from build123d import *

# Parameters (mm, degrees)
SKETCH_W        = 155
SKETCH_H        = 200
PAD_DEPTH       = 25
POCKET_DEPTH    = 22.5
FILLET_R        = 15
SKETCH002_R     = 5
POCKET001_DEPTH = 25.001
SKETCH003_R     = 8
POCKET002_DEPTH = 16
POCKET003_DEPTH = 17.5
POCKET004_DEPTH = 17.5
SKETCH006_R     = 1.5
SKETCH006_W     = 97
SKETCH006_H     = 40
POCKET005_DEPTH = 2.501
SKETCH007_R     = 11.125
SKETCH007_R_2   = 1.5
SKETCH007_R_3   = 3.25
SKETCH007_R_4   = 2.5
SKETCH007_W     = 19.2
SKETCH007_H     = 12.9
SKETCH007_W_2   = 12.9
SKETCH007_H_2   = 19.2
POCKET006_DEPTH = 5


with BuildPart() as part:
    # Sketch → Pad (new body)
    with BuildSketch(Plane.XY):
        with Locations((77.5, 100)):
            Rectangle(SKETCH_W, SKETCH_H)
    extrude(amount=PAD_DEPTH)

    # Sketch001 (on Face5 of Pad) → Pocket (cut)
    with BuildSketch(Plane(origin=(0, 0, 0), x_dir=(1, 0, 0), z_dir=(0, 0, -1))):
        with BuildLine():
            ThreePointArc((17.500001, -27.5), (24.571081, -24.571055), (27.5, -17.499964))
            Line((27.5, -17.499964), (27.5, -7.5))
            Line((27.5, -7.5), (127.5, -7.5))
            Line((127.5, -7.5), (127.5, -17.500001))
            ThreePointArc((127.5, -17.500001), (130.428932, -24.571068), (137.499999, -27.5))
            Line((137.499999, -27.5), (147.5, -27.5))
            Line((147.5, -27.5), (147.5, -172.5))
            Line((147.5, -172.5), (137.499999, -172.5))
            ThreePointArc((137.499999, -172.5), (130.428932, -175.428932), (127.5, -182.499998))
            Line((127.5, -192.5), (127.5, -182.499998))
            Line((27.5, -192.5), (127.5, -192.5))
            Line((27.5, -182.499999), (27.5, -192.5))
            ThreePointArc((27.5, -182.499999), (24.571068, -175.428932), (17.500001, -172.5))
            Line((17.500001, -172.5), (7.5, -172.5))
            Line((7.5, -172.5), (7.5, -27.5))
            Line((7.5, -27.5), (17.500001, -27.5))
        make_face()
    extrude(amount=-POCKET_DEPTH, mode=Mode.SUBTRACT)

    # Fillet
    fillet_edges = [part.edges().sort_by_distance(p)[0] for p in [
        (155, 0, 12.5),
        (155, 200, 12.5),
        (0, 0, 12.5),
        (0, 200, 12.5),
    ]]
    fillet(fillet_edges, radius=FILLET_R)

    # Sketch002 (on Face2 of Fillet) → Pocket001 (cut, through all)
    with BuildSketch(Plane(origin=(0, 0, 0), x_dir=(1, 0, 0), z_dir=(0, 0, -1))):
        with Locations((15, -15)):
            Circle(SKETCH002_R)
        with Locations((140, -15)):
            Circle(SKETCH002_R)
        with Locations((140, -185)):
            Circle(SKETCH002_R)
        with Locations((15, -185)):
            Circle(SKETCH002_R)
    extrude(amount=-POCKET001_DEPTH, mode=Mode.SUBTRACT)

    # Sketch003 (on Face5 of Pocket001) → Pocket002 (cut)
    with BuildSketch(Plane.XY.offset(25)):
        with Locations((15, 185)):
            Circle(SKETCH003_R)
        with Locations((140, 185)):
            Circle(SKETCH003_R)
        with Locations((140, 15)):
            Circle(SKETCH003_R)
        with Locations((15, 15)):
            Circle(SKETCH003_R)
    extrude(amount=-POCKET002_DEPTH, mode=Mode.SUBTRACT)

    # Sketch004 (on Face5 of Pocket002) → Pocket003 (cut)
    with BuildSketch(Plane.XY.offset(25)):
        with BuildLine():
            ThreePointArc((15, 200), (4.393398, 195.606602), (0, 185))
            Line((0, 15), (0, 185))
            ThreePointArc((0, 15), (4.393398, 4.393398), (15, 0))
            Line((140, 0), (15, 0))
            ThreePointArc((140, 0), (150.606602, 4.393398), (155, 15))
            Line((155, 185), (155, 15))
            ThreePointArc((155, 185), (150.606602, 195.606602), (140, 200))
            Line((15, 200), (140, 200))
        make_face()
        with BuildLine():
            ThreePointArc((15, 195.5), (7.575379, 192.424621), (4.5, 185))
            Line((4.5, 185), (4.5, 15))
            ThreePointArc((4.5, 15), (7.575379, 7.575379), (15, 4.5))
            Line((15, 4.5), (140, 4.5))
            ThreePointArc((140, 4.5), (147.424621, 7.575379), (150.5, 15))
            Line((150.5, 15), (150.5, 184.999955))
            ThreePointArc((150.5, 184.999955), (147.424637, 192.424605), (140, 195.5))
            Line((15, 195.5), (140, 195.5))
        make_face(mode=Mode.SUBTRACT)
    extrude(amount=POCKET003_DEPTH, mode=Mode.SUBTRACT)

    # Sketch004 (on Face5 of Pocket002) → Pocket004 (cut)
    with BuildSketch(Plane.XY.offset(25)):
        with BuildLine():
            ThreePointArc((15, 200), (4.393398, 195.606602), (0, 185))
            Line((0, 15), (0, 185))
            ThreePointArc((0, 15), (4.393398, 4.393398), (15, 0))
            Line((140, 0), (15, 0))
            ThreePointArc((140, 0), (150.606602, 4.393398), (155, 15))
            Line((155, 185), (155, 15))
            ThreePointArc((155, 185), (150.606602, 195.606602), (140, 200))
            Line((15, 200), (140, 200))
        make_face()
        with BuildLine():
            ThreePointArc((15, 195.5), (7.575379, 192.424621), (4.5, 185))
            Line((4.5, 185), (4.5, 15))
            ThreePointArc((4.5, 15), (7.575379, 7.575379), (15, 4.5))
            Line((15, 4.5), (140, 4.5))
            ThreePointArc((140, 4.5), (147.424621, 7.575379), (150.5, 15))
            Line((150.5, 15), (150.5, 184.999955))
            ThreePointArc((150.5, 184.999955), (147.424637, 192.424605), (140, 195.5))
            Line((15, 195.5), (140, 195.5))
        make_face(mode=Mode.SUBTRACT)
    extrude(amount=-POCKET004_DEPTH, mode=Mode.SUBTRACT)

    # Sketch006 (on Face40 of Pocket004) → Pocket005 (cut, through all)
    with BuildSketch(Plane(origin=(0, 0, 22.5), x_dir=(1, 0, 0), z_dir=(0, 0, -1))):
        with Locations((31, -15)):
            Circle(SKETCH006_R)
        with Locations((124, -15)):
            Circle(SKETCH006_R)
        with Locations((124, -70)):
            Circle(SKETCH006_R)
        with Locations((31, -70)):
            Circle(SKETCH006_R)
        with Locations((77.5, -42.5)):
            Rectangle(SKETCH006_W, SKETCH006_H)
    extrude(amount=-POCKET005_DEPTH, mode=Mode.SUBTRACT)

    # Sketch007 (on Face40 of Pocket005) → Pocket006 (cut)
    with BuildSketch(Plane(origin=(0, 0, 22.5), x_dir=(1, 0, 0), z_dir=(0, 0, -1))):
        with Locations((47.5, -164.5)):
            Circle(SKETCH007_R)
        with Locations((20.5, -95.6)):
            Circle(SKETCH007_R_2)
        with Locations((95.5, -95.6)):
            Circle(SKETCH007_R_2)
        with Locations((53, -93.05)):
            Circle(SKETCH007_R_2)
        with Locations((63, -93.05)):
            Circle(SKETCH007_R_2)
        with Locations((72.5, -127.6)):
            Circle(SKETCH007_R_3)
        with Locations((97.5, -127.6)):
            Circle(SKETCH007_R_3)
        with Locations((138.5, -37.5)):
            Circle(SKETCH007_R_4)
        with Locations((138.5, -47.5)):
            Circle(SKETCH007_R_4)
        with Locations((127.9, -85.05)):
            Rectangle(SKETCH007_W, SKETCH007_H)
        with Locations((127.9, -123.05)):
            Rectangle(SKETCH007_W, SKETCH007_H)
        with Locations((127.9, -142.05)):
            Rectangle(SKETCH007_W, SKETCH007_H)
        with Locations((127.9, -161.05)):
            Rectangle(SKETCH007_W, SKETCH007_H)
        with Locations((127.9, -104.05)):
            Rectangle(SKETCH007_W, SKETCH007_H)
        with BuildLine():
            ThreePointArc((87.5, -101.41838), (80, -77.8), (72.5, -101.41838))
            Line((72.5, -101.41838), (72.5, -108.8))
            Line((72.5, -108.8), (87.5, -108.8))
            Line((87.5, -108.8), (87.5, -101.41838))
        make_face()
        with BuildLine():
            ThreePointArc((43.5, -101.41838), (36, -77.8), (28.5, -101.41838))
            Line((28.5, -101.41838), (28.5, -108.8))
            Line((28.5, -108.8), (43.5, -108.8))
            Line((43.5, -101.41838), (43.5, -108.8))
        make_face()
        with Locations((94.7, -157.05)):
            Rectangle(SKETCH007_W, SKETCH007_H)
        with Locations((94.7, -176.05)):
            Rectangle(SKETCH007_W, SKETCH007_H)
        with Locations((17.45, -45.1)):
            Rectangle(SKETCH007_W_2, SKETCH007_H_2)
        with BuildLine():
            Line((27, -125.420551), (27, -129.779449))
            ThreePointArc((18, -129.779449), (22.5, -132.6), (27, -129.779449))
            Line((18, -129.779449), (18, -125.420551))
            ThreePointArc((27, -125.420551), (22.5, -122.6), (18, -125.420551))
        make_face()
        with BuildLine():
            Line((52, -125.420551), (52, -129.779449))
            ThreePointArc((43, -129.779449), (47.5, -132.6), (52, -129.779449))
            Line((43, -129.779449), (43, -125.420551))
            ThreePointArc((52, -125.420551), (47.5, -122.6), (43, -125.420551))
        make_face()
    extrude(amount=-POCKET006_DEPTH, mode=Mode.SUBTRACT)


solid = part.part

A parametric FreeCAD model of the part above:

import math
import FreeCAD as App
import Part
import Sketcher
from FreeCAD import Vector


def edges_at(feature, points):
    """Names of the edges that pass closest to the given points."""
    edges = feature.Shape.Edges
    near = lambda p: min(range(len(edges)), key=lambda i: edges[i].distToShape(Part.Vertex(*p))[0])
    return sorted({f"Edge{near(p) + 1}" for p in points})


def add_polygon(sketch, points):
    """Adds a closed chain of lines whose ends are joined by coincident constraints."""
    first, n = sketch.GeometryCount, len(points)
    for a, b in zip(points, points[1:] + points[:1]):
        sketch.addGeometry(Part.LineSegment(App.Vector(*a, 0), App.Vector(*b, 0)), False)
    for i in range(n):
        sketch.addConstraint(Sketcher.Constraint("Coincident", first + i, 2, first + (i + 1) % n, 1))

doc = App.newDocument("Part")
params = doc.addObject("Spreadsheet::Sheet", "Params")
for row, (alias, value) in enumerate([
    ("sketch1_width", "155 mm"),
    ("sketch1_height", "200 mm"),
    ("pad1_length", "25 mm"),
    ("sketch2_radius", "9.999999 mm"),
    ("sketch2_width", "10.000001 mm"),
    ("sketch2_width2", "100 mm"),
    ("sketch2_height", "145 mm"),
    ("pocket1_length", "22.5 mm"),
    ("fillet_radius", "15 mm"),
    ("sketch3_diameter", "10 mm"),
    ("sketch4_diameter", "16 mm"),
    ("pocket3_length", "16 mm"),
    ("sketch5_radius", "14.999999 mm"),
    ("sketch5_radius2", "10.500001 mm"),
    ("sketch5_width", "125 mm"),
    ("sketch5_height", "170 mm"),
    ("pocket4_length", "17.5 mm"),
    ("sketch6_radius", "14.999999 mm"),
    ("sketch6_radius2", "10.500001 mm"),
    ("sketch6_width", "125 mm"),
    ("sketch6_height", "170 mm"),
    ("pocket5_length", "17.5 mm"),
    ("sketch7_diameter", "3 mm"),
    ("sketch7_width", "97 mm"),
    ("sketch7_height", "40 mm"),
    ("sketch8_diameter", "3 mm"),
    ("sketch8_diameter2", "5 mm"),
    ("sketch8_radius", "13 mm"),
    ("sketch8_radius2", "5 mm"),
    ("sketch8_diameter3", "6.5 mm"),
    ("pocket7_length", "5 mm"),
], start=1):
    params.set(f"A{row}", alias)
    params.set(f"B{row}", "=" + value)
    params.setAlias(f"B{row}", alias)

body = doc.addObject("PartDesign::Body", "Body")

# Sketch on XY plane
sketch1 = body.newObject("Sketcher::SketchObject", "Sketch")
sketch1.AttachmentSupport = (doc.getObject("XY_Plane"), [""])
sketch1.MapMode = "FlatFace"
add_polygon(sketch1, [(0, 200), (0, 0), (155, 0), (155, 200)])  # lines 0-3
sketch1.addConstraint([
    Sketcher.Constraint("Vertical", 0),
    Sketcher.Constraint("Horizontal", 1),
    Sketcher.Constraint("Vertical", 2),
    Sketcher.Constraint("Horizontal", 3),
    Sketcher.Constraint("Coincident", 0, 2, -1, 1),
    Sketcher.Constraint("DistanceX", 1, 1, 1, 2, 155.0),
    Sketcher.Constraint("DistanceY", 0, 2, 0, 1, 200.0),
])
sketch1.setExpression("Constraints[9]", "Params.sketch1_width")
sketch1.setExpression("Constraints[10]", "Params.sketch1_height")
pad1 = body.newObject("PartDesign::Pad", "Pad")
pad1.Profile = sketch1
pad1.setExpression("Length", "Params.pad1_length")

# Sketch on XY plane
sketch2 = body.newObject("Sketcher::SketchObject", "Sketch001")
sketch2.AttachmentSupport = (doc.getObject("XY_Plane"), [""])
sketch2.MapMode = "FlatFace"
sketch2.addGeometry([
    Part.ArcOfCircle(Part.Circle(Vector(17.500001, 17.500001, 0), Vector(0, 0, 1), 9.999999), math.radians(-0.00021), math.radians(89.999998)),  # 0
    Part.LineSegment(Vector(17.500001, 27.5, 0), Vector(7.5, 27.5, 0)),  # 1
    Part.LineSegment(Vector(7.5, 27.5, 0), Vector(7.5, 172.5, 0)),  # 2
    Part.LineSegment(Vector(7.5, 172.5, 0), Vector(17.500001, 172.5, 0)),  # 3
    Part.ArcOfCircle(Part.Circle(Vector(17.500001, 182.499999, 0), Vector(0, 0, 1), 9.999999), math.radians(-89.999998), math.radians(-0.000002)),  # 4
    Part.LineSegment(Vector(27.5, 182.499999, 0), Vector(27.5, 192.5, 0)),  # 5
    Part.LineSegment(Vector(27.5, 192.5, 0), Vector(127.5, 192.5, 0)),  # 6
    Part.LineSegment(Vector(127.5, 192.5, 0), Vector(127.5, 182.499998, 0)),  # 7
    Part.ArcOfCircle(Part.Circle(Vector(137.499999, 182.499999, 0), Vector(0, 0, 1), 9.999999), math.radians(-179.999992), math.radians(-90.000002)),  # 8
    Part.LineSegment(Vector(137.499999, 172.5, 0), Vector(147.5, 172.5, 0)),  # 9
    Part.LineSegment(Vector(147.5, 172.5, 0), Vector(147.5, 27.5, 0)),  # 10
    Part.LineSegment(Vector(147.5, 27.5, 0), Vector(137.499999, 27.5, 0)),  # 11
    Part.ArcOfCircle(Part.Circle(Vector(137.499999, 17.500001, 0), Vector(0, 0, 1), 9.999999), math.radians(90.000002), math.radians(179.999998)),  # 12
    Part.LineSegment(Vector(127.5, 17.500001, 0), Vector(127.5, 7.5, 0)),  # 13
    Part.LineSegment(Vector(127.5, 7.5, 0), Vector(27.5, 7.5, 0)),  # 14
    Part.LineSegment(Vector(27.5, 7.5, 0), Vector(27.5, 17.499964, 0)),  # 15
], False)
sketch2.addConstraint([
    Sketcher.Constraint("Tangent", 0, 2, 1, 1),
    Sketcher.Constraint("Coincident", 1, 2, 2, 1),
    Sketcher.Constraint("Coincident", 2, 2, 3, 1),
    Sketcher.Constraint("Tangent", 3, 2, 4, 1),
    Sketcher.Constraint("Tangent", 4, 2, 5, 1),
    Sketcher.Constraint("Coincident", 5, 2, 6, 1),
    Sketcher.Constraint("Coincident", 6, 2, 7, 1),
    Sketcher.Constraint("Tangent", 7, 2, 8, 1),
    Sketcher.Constraint("Tangent", 8, 2, 9, 1),
    Sketcher.Constraint("Coincident", 9, 2, 10, 1),
    Sketcher.Constraint("Coincident", 10, 2, 11, 1),
    Sketcher.Constraint("Tangent", 11, 2, 12, 1),
    Sketcher.Constraint("Tangent", 12, 2, 13, 1),
    Sketcher.Constraint("Coincident", 13, 2, 14, 1),
    Sketcher.Constraint("Coincident", 14, 2, 15, 1),
    Sketcher.Constraint("Coincident", 15, 2, 0, 1),
    Sketcher.Constraint("Horizontal", 1),
    Sketcher.Constraint("Vertical", 2),
    Sketcher.Constraint("Horizontal", 3),
    Sketcher.Constraint("Vertical", 5),
    Sketcher.Constraint("Horizontal", 6),
    Sketcher.Constraint("Vertical", 7),
    Sketcher.Constraint("Horizontal", 9),
    Sketcher.Constraint("Vertical", 10),
    Sketcher.Constraint("Horizontal", 11),
    Sketcher.Constraint("Vertical", 13),
    Sketcher.Constraint("Horizontal", 14),
    Sketcher.Constraint("Vertical", 15),
    Sketcher.Constraint("Equal", 0, 4),
    Sketcher.Constraint("Equal", 4, 8),
    Sketcher.Constraint("Equal", 8, 12),
    Sketcher.Constraint("Horizontal", 4, 3, 8, 3),
    Sketcher.Constraint("Horizontal", 0, 3, 12, 3),
    Sketcher.Constraint("Vertical", 0, 3, 4, 3),
    Sketcher.Constraint("Vertical", 8, 3, 12, 3),
    Sketcher.Constraint("Equal", 3, 9),
    Sketcher.Constraint("Equal", 11, 5),
    Sketcher.Constraint("Equal", 7, 13),
    Sketcher.Constraint("Radius", 0, 9.999999),
    Sketcher.Constraint("DistanceX", 1, 2, 1, 1, 10.000001),
    Sketcher.Constraint("DistanceX", 6, 1, 6, 2, 100.0),
    Sketcher.Constraint("DistanceY", 2, 1, 2, 2, 145.0),
    Sketcher.Constraint("DistanceX", -1, 1, 0, 3, 17.500001),
    Sketcher.Constraint("DistanceY", -1, 1, 0, 3, 17.500001),
    Sketcher.Constraint("DistanceY", 15, 1, 15, 2, 9.999964),
])
sketch2.setExpression("Constraints[38]", "Params.sketch2_radius")
sketch2.setExpression("Constraints[39]", "Params.sketch2_width")
sketch2.setExpression("Constraints[40]", "Params.sketch2_width2")
sketch2.setExpression("Constraints[41]", "Params.sketch2_height")
pocket1 = body.newObject("PartDesign::Pocket", "Pocket")
pocket1.Profile = sketch2
pocket1.setExpression("Length", "Params.pocket1_length")
pocket1.Reversed = True
doc.recompute()

fillet = body.newObject("PartDesign::Fillet", "Fillet")
fillet.Base = (pocket1, edges_at(pocket1, [
    (155, 0, 12.5),
    (155, 200, 12.5),
    (0, 0, 12.5),
    (0, 200, 12.5),
]))
fillet.setExpression("Radius", "Params.fillet_radius")

# Sketch on XY plane
sketch3 = body.newObject("Sketcher::SketchObject", "Sketch002")
sketch3.AttachmentSupport = (doc.getObject("XY_Plane"), [""])
sketch3.MapMode = "FlatFace"
sketch3.addGeometry([
    Part.Circle(Vector(15, 15, 0), Vector(0, 0, 1), 5),
    Part.Circle(Vector(140, 15, 0), Vector(0, 0, 1), 5),
    Part.Circle(Vector(140, 185, 0), Vector(0, 0, 1), 5),
    Part.Circle(Vector(15, 185, 0), Vector(0, 0, 1), 5),
], False)
sketch3.addConstraint([
    Sketcher.Constraint("Equal", 0, 1),
    Sketcher.Constraint("Equal", 1, 2),
    Sketcher.Constraint("Equal", 2, 3),
    Sketcher.Constraint("Horizontal", 0, 3, 1, 3),
    Sketcher.Constraint("Horizontal", 2, 3, 3, 3),
    Sketcher.Constraint("Vertical", 1, 3, 2, 3),
    Sketcher.Constraint("Vertical", 0, 3, 3, 3),
    Sketcher.Constraint("Diameter", 0, 10.0),
    Sketcher.Constraint("DistanceX", -1, 1, 0, 3, 15.0),
    Sketcher.Constraint("DistanceY", -1, 1, 0, 3, 15.0),
    Sketcher.Constraint("DistanceX", -1, 1, 1, 3, 140.0),
    Sketcher.Constraint("DistanceY", -1, 1, 2, 3, 185.0),
])
sketch3.setExpression("Constraints[7]", "Params.sketch3_diameter")
pocket2 = body.newObject("PartDesign::Pocket", "Pocket001")
pocket2.Profile = sketch3
pocket2.Type = "ThroughAll"
pocket2.Reversed = True

# Sketch on XY plane
sketch4 = body.newObject("Sketcher::SketchObject", "Sketch003")
sketch4.AttachmentSupport = (doc.getObject("XY_Plane"), [""])
sketch4.MapMode = "FlatFace"
sketch4.AttachmentOffset = App.Placement(Vector(0, 0, 25), App.Rotation())
sketch4.addGeometry([
    Part.Circle(Vector(15, 185, 0), Vector(0, 0, 1), 8),
    Part.Circle(Vector(140, 185, 0), Vector(0, 0, 1), 8),
    Part.Circle(Vector(140, 15, 0), Vector(0, 0, 1), 8),
    Part.Circle(Vector(15, 15, 0), Vector(0, 0, 1), 8),
], False)
sketch4.addConstraint([
    Sketcher.Constraint("Equal", 0, 1),
    Sketcher.Constraint("Equal", 1, 2),
    Sketcher.Constraint("Equal", 2, 3),
    Sketcher.Constraint("Horizontal", 0, 3, 1, 3),
    Sketcher.Constraint("Horizontal", 2, 3, 3, 3),
    Sketcher.Constraint("Vertical", 1, 3, 2, 3),
    Sketcher.Constraint("Vertical", 0, 3, 3, 3),
    Sketcher.Constraint("Diameter", 0, 16.0),
    Sketcher.Constraint("DistanceX", -1, 1, 0, 3, 15.0),
    Sketcher.Constraint("DistanceY", -1, 1, 0, 3, 185.0),
    Sketcher.Constraint("DistanceX", -1, 1, 1, 3, 140.0),
    Sketcher.Constraint("DistanceY", -1, 1, 2, 3, 15.0),
])
sketch4.setExpression("Constraints[7]", "Params.sketch4_diameter")
pocket3 = body.newObject("PartDesign::Pocket", "Pocket002")
pocket3.Profile = sketch4
pocket3.setExpression("Length", "Params.pocket3_length")

# Sketch on XY plane
sketch5 = body.newObject("Sketcher::SketchObject", "Sketch004")
sketch5.AttachmentSupport = (doc.getObject("XY_Plane"), [""])
sketch5.MapMode = "FlatFace"
sketch5.AttachmentOffset = App.Placement(Vector(0, 0, 25), App.Rotation())
sketch5.addGeometry([
    Part.ArcOfCircle(Part.Circle(Vector(14.999999, 185.000001, 0), Vector(0, 0, 1), 14.999999), math.radians(89.999996), math.radians(180.000004)),  # 0
    Part.LineSegment(Vector(0, 185, 0), Vector(0, 15, 0)),  # 1
    Part.ArcOfCircle(Part.Circle(Vector(14.999999, 14.999999, 0), Vector(0, 0, 1), 14.999999), math.radians(179.999996), math.radians(270.000004)),  # 2
    Part.LineSegment(Vector(15, 0, 0), Vector(140, 0, 0)),  # 3
    Part.ArcOfCircle(Part.Circle(Vector(140.000001, 14.999999, 0), Vector(0, 0, 1), 14.999999), math.radians(-90.000004), math.radians(0.000004)),  # 4
    Part.LineSegment(Vector(155, 15, 0), Vector(155, 185, 0)),  # 5
    Part.ArcOfCircle(Part.Circle(Vector(140.000001, 185.000001, 0), Vector(0, 0, 1), 14.999999), math.radians(-0.000004), math.radians(90.000004)),  # 6
    Part.LineSegment(Vector(140, 200, 0), Vector(15, 200, 0)),  # 7
    Part.ArcOfCircle(Part.Circle(Vector(15.000001, 184.999999, 0), Vector(0, 0, 1), 10.500001), math.radians(90.000004), math.radians(179.999996)),  # 8
    Part.LineSegment(Vector(15, 195.5, 0), Vector(140, 195.5, 0)),  # 9
    Part.ArcOfCircle(Part.Circle(Vector(139.999999, 184.999999, 0), Vector(0, 0, 1), 10.500001), math.radians(-0.000242), math.radians(89.999996)),  # 10
    Part.LineSegment(Vector(150.5, 184.999955, 0), Vector(150.5, 15, 0)),  # 11
    Part.ArcOfCircle(Part.Circle(Vector(139.999999, 15.000001, 0), Vector(0, 0, 1), 10.500001), math.radians(-89.999996), math.radians(-0.000004)),  # 12
    Part.LineSegment(Vector(140, 4.5, 0), Vector(15, 4.5, 0)),  # 13
    Part.ArcOfCircle(Part.Circle(Vector(15.000001, 15.000001, 0), Vector(0, 0, 1), 10.500001), math.radians(-179.999996), math.radians(-90.000004)),  # 14
    Part.LineSegment(Vector(4.5, 15, 0), Vector(4.5, 185, 0)),  # 15
], False)
sketch5.addConstraint([
    Sketcher.Constraint("Tangent", 0, 2, 1, 1),
    Sketcher.Constraint("Tangent", 1, 2, 2, 1),
    Sketcher.Constraint("Tangent", 2, 2, 3, 1),
    Sketcher.Constraint("Tangent", 3, 2, 4, 1),
    Sketcher.Constraint("Tangent", 4, 2, 5, 1),
    Sketcher.Constraint("Tangent", 5, 2, 6, 1),
    Sketcher.Constraint("Tangent", 6, 2, 7, 1),
    Sketcher.Constraint("Tangent", 7, 2, 0, 1),
    Sketcher.Constraint("Tangent", 8, 1, 9, 1),
    Sketcher.Constraint("Tangent", 9, 2, 10, 2),
    Sketcher.Constraint("Coincident", 10, 1, 11, 1),
    Sketcher.Constraint("Tangent", 11, 2, 12, 2),
    Sketcher.Constraint("Tangent", 12, 1, 13, 1),
    Sketcher.Constraint("Tangent", 13, 2, 14, 2),
    Sketcher.Constraint("Tangent", 14, 1, 15, 1),
    Sketcher.Constraint("Tangent", 15, 2, 8, 2),
    Sketcher.Constraint("Vertical", 1),
    Sketcher.Constraint("Horizontal", 3),
    Sketcher.Constraint("Vertical", 5),
    Sketcher.Constraint("Horizontal", 7),
    Sketcher.Constraint("Horizontal", 9),
    Sketcher.Constraint("Vertical", 11),
    Sketcher.Constraint("Horizontal", 13),
    Sketcher.Constraint("Vertical", 15),
    Sketcher.Constraint("Coincident", 8, 3, 0, 3),
    Sketcher.Constraint("Coincident", 10, 3, 6, 3),
    Sketcher.Constraint("Coincident", 12, 3, 4, 3),
    Sketcher.Constraint("Equal", 0, 2),
    Sketcher.Constraint("Equal", 2, 4),
    Sketcher.Constraint("Equal", 4, 6),
    Sketcher.Constraint("Equal", 12, 14),
    Sketcher.Constraint("PointOnObject", 0, 2, -2),
    Sketcher.Constraint("PointOnObject", 2, 2, -1),
    Sketcher.Constraint("Radius", 0, 14.999999),
    Sketcher.Constraint("Radius", 8, 10.500001),
    Sketcher.Constraint("DistanceX", 3, 1, 3, 2, 125.0),
    Sketcher.Constraint("DistanceY", 1, 2, 1, 1, 170.0),
    Sketcher.Constraint("DistanceY", 11, 2, 11, 1, 169.999955),
])
sketch5.setExpression("Constraints[33]", "Params.sketch5_radius")
sketch5.setExpression("Constraints[34]", "Params.sketch5_radius2")
sketch5.setExpression("Constraints[35]", "Params.sketch5_width")
sketch5.setExpression("Constraints[36]", "Params.sketch5_height")
pocket4 = body.newObject("PartDesign::Pocket", "Pocket003")
pocket4.Profile = sketch5
pocket4.setExpression("Length", "Params.pocket4_length")
pocket4.Reversed = True

# Sketch on XY plane
sketch6 = body.newObject("Sketcher::SketchObject", "Sketch005")
sketch6.AttachmentSupport = (doc.getObject("XY_Plane"), [""])
sketch6.MapMode = "FlatFace"
sketch6.AttachmentOffset = App.Placement(Vector(0, 0, 25), App.Rotation())
sketch6.addGeometry([
    Part.ArcOfCircle(Part.Circle(Vector(14.999999, 185.000001, 0), Vector(0, 0, 1), 14.999999), math.radians(89.999996), math.radians(180.000004)),  # 0
    Part.LineSegment(Vector(0, 185, 0), Vector(0, 15, 0)),  # 1
    Part.ArcOfCircle(Part.Circle(Vector(14.999999, 14.999999, 0), Vector(0, 0, 1), 14.999999), math.radians(179.999996), math.radians(270.000004)),  # 2
    Part.LineSegment(Vector(15, 0, 0), Vector(140, 0, 0)),  # 3
    Part.ArcOfCircle(Part.Circle(Vector(140.000001, 14.999999, 0), Vector(0, 0, 1), 14.999999), math.radians(-90.000004), math.radians(0.000004)),  # 4
    Part.LineSegment(Vector(155, 15, 0), Vector(155, 185, 0)),  # 5
    Part.ArcOfCircle(Part.Circle(Vector(140.000001, 185.000001, 0), Vector(0, 0, 1), 14.999999), math.radians(-0.000004), math.radians(90.000004)),  # 6
    Part.LineSegment(Vector(140, 200, 0), Vector(15, 200, 0)),  # 7
    Part.ArcOfCircle(Part.Circle(Vector(15.000001, 184.999999, 0), Vector(0, 0, 1), 10.500001), math.radians(90.000004), math.radians(179.999996)),  # 8
    Part.LineSegment(Vector(15, 195.5, 0), Vector(140, 195.5, 0)),  # 9
    Part.ArcOfCircle(Part.Circle(Vector(139.999999, 184.999999, 0), Vector(0, 0, 1), 10.500001), math.radians(-0.000242), math.radians(89.999996)),  # 10
    Part.LineSegment(Vector(150.5, 184.999955, 0), Vector(150.5, 15, 0)),  # 11
    Part.ArcOfCircle(Part.Circle(Vector(139.999999, 15.000001, 0), Vector(0, 0, 1), 10.500001), math.radians(-89.999996), math.radians(-0.000004)),  # 12
    Part.LineSegment(Vector(140, 4.5, 0), Vector(15, 4.5, 0)),  # 13
    Part.ArcOfCircle(Part.Circle(Vector(15.000001, 15.000001, 0), Vector(0, 0, 1), 10.500001), math.radians(-179.999996), math.radians(-90.000004)),  # 14
    Part.LineSegment(Vector(4.5, 15, 0), Vector(4.5, 185, 0)),  # 15
], False)
sketch6.addConstraint([
    Sketcher.Constraint("Tangent", 0, 2, 1, 1),
    Sketcher.Constraint("Tangent", 1, 2, 2, 1),
    Sketcher.Constraint("Tangent", 2, 2, 3, 1),
    Sketcher.Constraint("Tangent", 3, 2, 4, 1),
    Sketcher.Constraint("Tangent", 4, 2, 5, 1),
    Sketcher.Constraint("Tangent", 5, 2, 6, 1),
    Sketcher.Constraint("Tangent", 6, 2, 7, 1),
    Sketcher.Constraint("Tangent", 7, 2, 0, 1),
    Sketcher.Constraint("Tangent", 8, 1, 9, 1),
    Sketcher.Constraint("Tangent", 9, 2, 10, 2),
    Sketcher.Constraint("Coincident", 10, 1, 11, 1),
    Sketcher.Constraint("Tangent", 11, 2, 12, 2),
    Sketcher.Constraint("Tangent", 12, 1, 13, 1),
    Sketcher.Constraint("Tangent", 13, 2, 14, 2),
    Sketcher.Constraint("Tangent", 14, 1, 15, 1),
    Sketcher.Constraint("Tangent", 15, 2, 8, 2),
    Sketcher.Constraint("Vertical", 1),
    Sketcher.Constraint("Horizontal", 3),
    Sketcher.Constraint("Vertical", 5),
    Sketcher.Constraint("Horizontal", 7),
    Sketcher.Constraint("Horizontal", 9),
    Sketcher.Constraint("Vertical", 11),
    Sketcher.Constraint("Horizontal", 13),
    Sketcher.Constraint("Vertical", 15),
    Sketcher.Constraint("Coincident", 8, 3, 0, 3),
    Sketcher.Constraint("Coincident", 10, 3, 6, 3),
    Sketcher.Constraint("Coincident", 12, 3, 4, 3),
    Sketcher.Constraint("Equal", 0, 2),
    Sketcher.Constraint("Equal", 2, 4),
    Sketcher.Constraint("Equal", 4, 6),
    Sketcher.Constraint("Equal", 12, 14),
    Sketcher.Constraint("PointOnObject", 0, 2, -2),
    Sketcher.Constraint("PointOnObject", 2, 2, -1),
    Sketcher.Constraint("Radius", 0, 14.999999),
    Sketcher.Constraint("Radius", 8, 10.500001),
    Sketcher.Constraint("DistanceX", 3, 1, 3, 2, 125.0),
    Sketcher.Constraint("DistanceY", 1, 2, 1, 1, 170.0),
    Sketcher.Constraint("DistanceY", 11, 2, 11, 1, 169.999955),
])
sketch6.setExpression("Constraints[33]", "Params.sketch6_radius")
sketch6.setExpression("Constraints[34]", "Params.sketch6_radius2")
sketch6.setExpression("Constraints[35]", "Params.sketch6_width")
sketch6.setExpression("Constraints[36]", "Params.sketch6_height")
pocket5 = body.newObject("PartDesign::Pocket", "Pocket004")
pocket5.Profile = sketch6
pocket5.setExpression("Length", "Params.pocket5_length")

# Sketch on XY plane
sketch7 = body.newObject("Sketcher::SketchObject", "Sketch006")
sketch7.AttachmentSupport = (doc.getObject("XY_Plane"), [""])
sketch7.MapMode = "FlatFace"
sketch7.AttachmentOffset = App.Placement(Vector(0, 0, 22.5), App.Rotation())
sketch7.addGeometry(Part.Circle(Vector(31, 15, 0), Vector(0, 0, 1), 1.5), False)  # 0
sketch7.addGeometry(Part.Circle(Vector(124, 15, 0), Vector(0, 0, 1), 1.5), False)  # 1
sketch7.addGeometry(Part.Circle(Vector(124, 70, 0), Vector(0, 0, 1), 1.5), False)  # 2
sketch7.addGeometry(Part.Circle(Vector(31, 70, 0), Vector(0, 0, 1), 1.5), False)  # 3
add_polygon(sketch7, [(29, 22.5), (29, 62.5), (126, 62.5), (126, 22.5)])  # lines 4-7
sketch7.addConstraint([
    Sketcher.Constraint("Vertical", 4),
    Sketcher.Constraint("Horizontal", 5),
    Sketcher.Constraint("Vertical", 6),
    Sketcher.Constraint("Horizontal", 7),
    Sketcher.Constraint("Equal", 0, 1),
    Sketcher.Constraint("Equal", 1, 2),
    Sketcher.Constraint("Equal", 2, 3),
    Sketcher.Constraint("Horizontal", 0, 3, 1, 3),
    Sketcher.Constraint("Horizontal", 2, 3, 3, 3),
    Sketcher.Constraint("Vertical", 1, 3, 2, 3),
    Sketcher.Constraint("Vertical", 0, 3, 3, 3),
    Sketcher.Constraint("Diameter", 0, 3.0),
    Sketcher.Constraint("DistanceX", 5, 1, 5, 2, 97.0),
    Sketcher.Constraint("DistanceY", 4, 1, 4, 2, 40.0),
    Sketcher.Constraint("DistanceX", -1, 1, 0, 3, 31.0),
    Sketcher.Constraint("DistanceY", -1, 1, 0, 3, 15.0),
    Sketcher.Constraint("DistanceX", -1, 1, 1, 3, 124.0),
    Sketcher.Constraint("DistanceY", -1, 1, 2, 3, 70.0),
    Sketcher.Constraint("DistanceX", -1, 1, 4, 2, 29.0),
    Sketcher.Constraint("DistanceY", -1, 1, 4, 2, 62.5),
])
sketch7.setExpression("Constraints[15]", "Params.sketch7_diameter")
sketch7.setExpression("Constraints[16]", "Params.sketch7_width")
sketch7.setExpression("Constraints[17]", "Params.sketch7_height")
pocket6 = body.newObject("PartDesign::Pocket", "Pocket005")
pocket6.Profile = sketch7
pocket6.Type = "ThroughAll"
pocket6.Reversed = True

# Sketch on XY plane
sketch8 = body.newObject("Sketcher::SketchObject", "Sketch007")
sketch8.AttachmentSupport = (doc.getObject("XY_Plane"), [""])
sketch8.MapMode = "FlatFace"
sketch8.AttachmentOffset = App.Placement(Vector(0, 0, 22.5), App.Rotation())
sketch8.addGeometry(Part.Circle(Vector(47.5, 164.5, 0), Vector(0, 0, 1), 11.125), False)  # 0
sketch8.addGeometry(Part.Circle(Vector(20.5, 95.6, 0), Vector(0, 0, 1), 1.5), False)  # 1
sketch8.addGeometry(Part.Circle(Vector(95.5, 95.6, 0), Vector(0, 0, 1), 1.5), False)  # 2
sketch8.addGeometry(Part.Circle(Vector(53, 93.05, 0), Vector(0, 0, 1), 1.5), False)  # 3
sketch8.addGeometry(Part.Circle(Vector(63, 93.05, 0), Vector(0, 0, 1), 1.5), False)  # 4
sketch8.addGeometry(Part.Circle(Vector(72.5, 127.6, 0), Vector(0, 0, 1), 3.25), False)  # 5
sketch8.addGeometry(Part.Circle(Vector(97.5, 127.6, 0), Vector(0, 0, 1), 3.25), False)  # 6
sketch8.addGeometry(Part.Circle(Vector(138.5, 37.5, 0), Vector(0, 0, 1), 2.5), False)  # 7
sketch8.addGeometry(Part.Circle(Vector(138.5, 47.5, 0), Vector(0, 0, 1), 2.5), False)  # 8
add_polygon(sketch8, [(118.3, 78.6), (118.3, 91.5), (137.5, 91.5), (137.5, 78.6)])  # lines 9-12
add_polygon(sketch8, [(118.3, 116.6), (118.3, 129.5), (137.5, 129.5), (137.5, 116.6)])  # lines 13-16
add_polygon(sketch8, [(118.3, 135.6), (118.3, 148.5), (137.5, 148.5), (137.5, 135.6)])  # lines 17-20
add_polygon(sketch8, [(118.3, 154.6), (118.3, 167.5), (137.5, 167.5), (137.5, 154.6)])  # lines 21-24
add_polygon(sketch8, [(118.3, 97.6), (118.3, 110.5), (137.5, 110.5), (137.5, 97.6)])  # lines 25-28
sketch8.addGeometry(Part.ArcOfCircle(Part.Circle(Vector(80, 90.8, 0), Vector(0, 0, 1), 13), math.radians(125.234418), math.radians(414.765582)), False)  # 29
sketch8.addGeometry(Part.LineSegment(Vector(72.5, 101.41838, 0), Vector(72.5, 108.8, 0)), False)  # 30
sketch8.addGeometry(Part.LineSegment(Vector(72.5, 108.8, 0), Vector(87.5, 108.8, 0)), False)  # 31
sketch8.addGeometry(Part.LineSegment(Vector(87.5, 108.8, 0), Vector(87.5, 101.41838, 0)), False)  # 32
sketch8.addGeometry(Part.ArcOfCircle(Part.Circle(Vector(36, 90.8, 0), Vector(0, 0, 1), 13), math.radians(125.234418), math.radians(414.765582)), False)  # 33
sketch8.addGeometry(Part.LineSegment(Vector(28.5, 101.41838, 0), Vector(28.5, 108.8, 0)), False)  # 34
sketch8.addGeometry(Part.LineSegment(Vector(28.5, 108.8, 0), Vector(43.5, 108.8, 0)), False)  # 35
sketch8.addGeometry(Part.LineSegment(Vector(43.5, 108.8, 0), Vector(43.5, 101.41838, 0)), False)  # 36
add_polygon(sketch8, [(85.1, 150.6), (85.1, 163.5), (104.3, 163.5), (104.3, 150.6)])  # lines 37-40
add_polygon(sketch8, [(85.1, 169.6), (85.1, 182.5), (104.3, 182.5), (104.3, 169.6)])  # lines 41-44
add_polygon(sketch8, [(11, 35.5), (11, 54.7), (23.9, 54.7), (23.9, 35.5)])  # lines 45-48
sketch8.addGeometry(Part.LineSegment(Vector(27, 129.779449, 0), Vector(27, 125.420551, 0)), False)  # 49
sketch8.addGeometry(Part.ArcOfCircle(Part.Circle(Vector(22.5, 127.6, 0), Vector(0, 0, 1), 5), math.radians(-154.158076), math.radians(-25.841924)), False)  # 50
sketch8.addGeometry(Part.LineSegment(Vector(18, 125.420551, 0), Vector(18, 129.779449, 0)), False)  # 51
sketch8.addGeometry(Part.ArcOfCircle(Part.Circle(Vector(22.5, 127.6, 0), Vector(0, 0, 1), 5), math.radians(25.841924), math.radians(154.158076)), False)  # 52
sketch8.addGeometry(Part.LineSegment(Vector(52, 129.779449, 0), Vector(52, 125.420551, 0)), False)  # 53
sketch8.addGeometry(Part.ArcOfCircle(Part.Circle(Vector(47.5, 127.6, 0), Vector(0, 0, 1), 5), math.radians(-154.158076), math.radians(-25.841924)), False)  # 54
sketch8.addGeometry(Part.LineSegment(Vector(43, 125.420551, 0), Vector(43, 129.779449, 0)), False)  # 55
sketch8.addGeometry(Part.ArcOfCircle(Part.Circle(Vector(47.5, 127.6, 0), Vector(0, 0, 1), 5), math.radians(25.841924), math.radians(154.158076)), False)  # 56
sketch8.addConstraint([
    Sketcher.Constraint("Coincident", 29, 1, 30, 1),
    Sketcher.Constraint("Coincident", 30, 2, 31, 1),
    Sketcher.Constraint("Coincident", 31, 2, 32, 1),
    Sketcher.Constraint("Coincident", 32, 2, 29, 2),
    Sketcher.Constraint("Coincident", 33, 1, 34, 1),
    Sketcher.Constraint("Coincident", 34, 2, 35, 1),
    Sketcher.Constraint("Coincident", 35, 2, 36, 1),
    Sketcher.Constraint("Coincident", 36, 2, 33, 2),
    Sketcher.Constraint("Coincident", 49, 2, 50, 2),
    Sketcher.Constraint("Coincident", 50, 1, 51, 1),
    Sketcher.Constraint("Coincident", 51, 2, 52, 2),
    Sketcher.Constraint("Coincident", 52, 1, 49, 1),
    Sketcher.Constraint("Coincident", 53, 2, 54, 2),
    Sketcher.Constraint("Coincident", 54, 1, 55, 1),
    Sketcher.Constraint("Coincident", 55, 2, 56, 2),
    Sketcher.Constraint("Coincident", 56, 1, 53, 1),
    Sketcher.Constraint("Vertical", 9),
    Sketcher.Constraint("Horizontal", 10),
    Sketcher.Constraint("Vertical", 11),
    Sketcher.Constraint("Horizontal", 12),
    Sketcher.Constraint("Vertical", 13),
    Sketcher.Constraint("Horizontal", 14),
    Sketcher.Constraint("Vertical", 15),
    Sketcher.Constraint("Horizontal", 16),
    Sketcher.Constraint("Vertical", 17),
    Sketcher.Constraint("Horizontal", 18),
    Sketcher.Constraint("Vertical", 19),
    Sketcher.Constraint("Horizontal", 20),
    Sketcher.Constraint("Vertical", 21),
    Sketcher.Constraint("Horizontal", 22),
    Sketcher.Constraint("Vertical", 23),
    Sketcher.Constraint("Horizontal", 24),
    Sketcher.Constraint("Vertical", 25),
    Sketcher.Constraint("Horizontal", 26),
    Sketcher.Constraint("Vertical", 27),
    Sketcher.Constraint("Horizontal", 28),
    Sketcher.Constraint("Vertical", 30),
    Sketcher.Constraint("Horizontal", 31),
    Sketcher.Constraint("Vertical", 32),
    Sketcher.Constraint("Vertical", 34),
    Sketcher.Constraint("Horizontal", 35),
    Sketcher.Constraint("Vertical", 36),
    Sketcher.Constraint("Vertical", 37),
    Sketcher.Constraint("Horizontal", 38),
    Sketcher.Constraint("Vertical", 39),
    Sketcher.Constraint("Horizontal", 40),
    Sketcher.Constraint("Vertical", 41),
    Sketcher.Constraint("Horizontal", 42),
    Sketcher.Constraint("Vertical", 43),
    Sketcher.Constraint("Horizontal", 44),
    Sketcher.Constraint("Vertical", 45),
    Sketcher.Constraint("Horizontal", 46),
    Sketcher.Constraint("Vertical", 47),
    Sketcher.Constraint("Horizontal", 48),
    Sketcher.Constraint("Vertical", 49),
    Sketcher.Constraint("Vertical", 51),
    Sketcher.Constraint("Vertical", 53),
    Sketcher.Constraint("Vertical", 55),
    Sketcher.Constraint("Coincident", 52, 3, 50, 3),
    Sketcher.Constraint("Coincident", 56, 3, 54, 3),
    Sketcher.Constraint("Equal", 1, 2),
    Sketcher.Constraint("Equal", 2, 3),
    Sketcher.Constraint("Equal", 3, 4),
    Sketcher.Constraint("Equal", 5, 6),
    Sketcher.Constraint("Equal", 7, 8),
    Sketcher.Constraint("Equal", 29, 33),
    Sketcher.Constraint("Equal", 50, 52),
    Sketcher.Constraint("Equal", 52, 54),
    Sketcher.Constraint("Equal", 54, 56),
    Sketcher.Constraint("Horizontal", 1, 3, 2, 3),
    Sketcher.Constraint("Horizontal", 3, 3, 4, 3),
    Sketcher.Constraint("Horizontal", 5, 3, 6, 3),
    Sketcher.Constraint("Horizontal", 29, 3, 33, 3),
    Sketcher.Constraint("Horizontal", 6, 3, 50, 3),
    Sketcher.Constraint("Horizontal", 52, 3, 54, 3),
    Sketcher.Constraint("Horizontal", 29, 1, 32, 2),
    Sketcher.Constraint("Horizontal", 32, 2, 33, 1),
    Sketcher.Constraint("Horizontal", 31, 2, 34, 2),
    Sketcher.Constraint("Horizontal", 33, 1, 36, 2),
    Sketcher.Constraint("Horizontal", 49, 2, 50, 1),
    Sketcher.Constraint("Horizontal", 50, 1, 53, 2),
    Sketcher.Constraint("Horizontal", 53, 2, 54, 1),
    Sketcher.Constraint("Vertical", 7, 3, 8, 3),
    Sketcher.Constraint("Vertical", 0, 3, 54, 3),
    Sketcher.Constraint("Vertical", 12, 2, 13, 2),
    Sketcher.Constraint("Vertical", 11, 2, 14, 2),
    Sketcher.Constraint("Vertical", 16, 2, 17, 2),
    Sketcher.Constraint("Vertical", 15, 2, 18, 2),
    Sketcher.Constraint("Vertical", 20, 2, 21, 2),
    Sketcher.Constraint("Vertical", 19, 2, 22, 2),
    Sketcher.Constraint("Vertical", 24, 2, 25, 2),
    Sketcher.Constraint("Vertical", 23, 2, 26, 2),
    Sketcher.Constraint("Vertical", 5, 3, 29, 1),
    Sketcher.Constraint("Vertical", 40, 2, 41, 2),
    Sketcher.Constraint("Vertical", 39, 2, 42, 2),
    Sketcher.Constraint("Equal", 28, 38),
    Sketcher.Constraint("Equal", 48, 9),
    Sketcher.Constraint("Equal", 11, 13),
    Sketcher.Constraint("Equal", 15, 17),
    Sketcher.Constraint("Equal", 19, 21),
    Sketcher.Constraint("Equal", 23, 25),
    Sketcher.Constraint("Equal", 27, 37),
    Sketcher.Constraint("Equal", 39, 41),
    Sketcher.Constraint("Equal", 44, 45),
    Sketcher.Constraint("Diameter", 1, 3.0),
    Sketcher.Constraint("Diameter", 7, 5.0),
    Sketcher.Constraint("Radius", 29, 13.0),
    Sketcher.Constraint("Radius", 50, 5.0),
    Sketcher.Constraint("Diameter", 5, 6.5),
    Sketcher.Constraint("Diameter", 0, 22.25),
    Sketcher.Constraint("DistanceX", 31, 1, 31, 2, 15.0),
    Sketcher.Constraint("DistanceX", 10, 1, 10, 2, 19.2),
    Sketcher.Constraint("DistanceX", 46, 1, 46, 2, 12.9),
    Sketcher.Constraint("DistanceX", -1, 1, 3, 3, 53.0),
    Sketcher.Constraint("DistanceX", -1, 1, 4, 3, 63.0),
    Sketcher.Constraint("DistanceX", -1, 1, 29, 3, 80.0),
    Sketcher.Constraint("DistanceX", -1, 1, 33, 3, 36.0),
    Sketcher.Constraint("DistanceX", -1, 1, 45, 2, 11.0),
    Sketcher.Constraint("DistanceX", -1, 1, 49, 2, 27.0),
    Sketcher.Constraint("DistanceX", -1, 1, 50, 1, 18.0),
    Sketcher.Constraint("DistanceX", -1, 1, 53, 2, 52.0),
    Sketcher.Constraint("DistanceY", -1, 1, 0, 3, 164.5),
    Sketcher.Constraint("DistanceX", -1, 1, 1, 3, 20.5),
    Sketcher.Constraint("DistanceY", -1, 1, 1, 3, 95.6),
    Sketcher.Constraint("DistanceX", -1, 1, 2, 3, 95.5),
    Sketcher.Constraint("DistanceY", -1, 1, 5, 3, 127.6),
    Sketcher.Constraint("DistanceX", -1, 1, 6, 3, 97.5),
    Sketcher.Constraint("DistanceX", -1, 1, 7, 3, 138.5),
    Sketcher.Constraint("DistanceY", -1, 1, 7, 3, 37.5),
    Sketcher.Constraint("DistanceY", -1, 1, 8, 3, 47.5),
    Sketcher.Constraint("DistanceY", -1, 1, 29, 3, 90.8),
    Sketcher.Constraint("DistanceX", -1, 1, 9, 2, 118.3),
    Sketcher.Constraint("DistanceY", -1, 1, 9, 2, 91.5),
    Sketcher.Constraint("DistanceY", -1, 1, 13, 2, 129.5),
    Sketcher.Constraint("DistanceY", -1, 1, 17, 2, 148.5),
    Sketcher.Constraint("DistanceY", -1, 1, 21, 2, 167.5),
    Sketcher.Constraint("DistanceY", -1, 1, 25, 2, 110.5),
    Sketcher.Constraint("DistanceY", -1, 1, 30, 2, 108.8),
    Sketcher.Constraint("DistanceX", -1, 1, 37, 2, 85.1),
    Sketcher.Constraint("DistanceY", -1, 1, 37, 2, 163.5),
    Sketcher.Constraint("DistanceY", -1, 1, 41, 2, 182.5),
    Sketcher.Constraint("DistanceY", -1, 1, 45, 2, 54.7),
    Sketcher.Constraint("DistanceY", -1, 1, 3, 3, 93.05),
])
sketch8.setExpression("Constraints[136]", "Params.sketch8_diameter")
sketch8.setExpression("Constraints[137]", "Params.sketch8_diameter2")
sketch8.setExpression("Constraints[138]", "Params.sketch8_radius")
sketch8.setExpression("Constraints[139]", "Params.sketch8_radius2")
sketch8.setExpression("Constraints[140]", "Params.sketch8_diameter3")
pocket7 = body.newObject("PartDesign::Pocket", "Pocket006")
pocket7.Profile = sketch8
pocket7.setExpression("Length", "Params.pocket7_length")
pocket7.Reversed = True

doc.recompute()
